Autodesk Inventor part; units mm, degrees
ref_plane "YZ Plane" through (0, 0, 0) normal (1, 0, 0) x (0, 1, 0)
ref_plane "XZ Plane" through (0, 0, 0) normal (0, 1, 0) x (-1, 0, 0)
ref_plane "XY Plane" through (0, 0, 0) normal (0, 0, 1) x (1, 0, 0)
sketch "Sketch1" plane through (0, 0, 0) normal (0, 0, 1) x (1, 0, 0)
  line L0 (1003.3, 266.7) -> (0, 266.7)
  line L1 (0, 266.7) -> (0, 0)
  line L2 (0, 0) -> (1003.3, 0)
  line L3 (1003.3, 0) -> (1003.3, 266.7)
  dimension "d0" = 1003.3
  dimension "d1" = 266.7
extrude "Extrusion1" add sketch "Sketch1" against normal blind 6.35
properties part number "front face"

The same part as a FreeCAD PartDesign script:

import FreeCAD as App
import Part
import Sketcher
Q = App.Units.Quantity

doc = App.newDocument("Part")
body = doc.addObject("PartDesign::Body", "Body")

sketch1 = body.newObject("Sketcher::SketchObject", "Sketch")
sketch1.AttachmentSupport = (doc.getObject("XY_Plane"), [""])
sketch1.MapMode = "FlatFace"
sketch1.addGeometry(Part.LineSegment(App.Vector(1003, 0, 0), App.Vector(1003, 267, 0)), False)
sketch1.addGeometry(Part.LineSegment(App.Vector(1003, 267, 0), App.Vector(0, 267, 0)), False)
sketch1.addGeometry(Part.LineSegment(App.Vector(0, 267, 0), App.Vector(0, 0, 0)), False)
sketch1.addGeometry(Part.LineSegment(App.Vector(0, 0, 0), App.Vector(1003, 0, 0)), False)
sketch1.addConstraint(Sketcher.Constraint("Coincident", 0, 2, 1, 1))
sketch1.addConstraint(Sketcher.Constraint("Coincident", 1, 2, 2, 1))
sketch1.addConstraint(Sketcher.Constraint("Coincident", 2, 2, 3, 1))
sketch1.addConstraint(Sketcher.Constraint("Coincident", 3, 2, 0, 1))
sketch1.addConstraint(Sketcher.Constraint("Vertical", 0))
sketch1.addConstraint(Sketcher.Constraint("Horizontal", 1))
sketch1.addConstraint(Sketcher.Constraint("Vertical", 2))
sketch1.addConstraint(Sketcher.Constraint("Horizontal", 3))
sketch1.addConstraint(Sketcher.Constraint("Coincident", 2, 2, -1, 1))
sketch1.addConstraint(Sketcher.Constraint("DistanceX", 1, 2, 1, 1, Q("39.5 in")))
sketch1.addConstraint(Sketcher.Constraint("DistanceY", 0, 1, 0, 2, Q("10.5 in")))
pad1 = body.newObject("PartDesign::Pad", "Pad")
pad1.Profile = sketch1
pad1.Length = Q("0.25 in")
pad1.Reversed = True

doc.recompute()
